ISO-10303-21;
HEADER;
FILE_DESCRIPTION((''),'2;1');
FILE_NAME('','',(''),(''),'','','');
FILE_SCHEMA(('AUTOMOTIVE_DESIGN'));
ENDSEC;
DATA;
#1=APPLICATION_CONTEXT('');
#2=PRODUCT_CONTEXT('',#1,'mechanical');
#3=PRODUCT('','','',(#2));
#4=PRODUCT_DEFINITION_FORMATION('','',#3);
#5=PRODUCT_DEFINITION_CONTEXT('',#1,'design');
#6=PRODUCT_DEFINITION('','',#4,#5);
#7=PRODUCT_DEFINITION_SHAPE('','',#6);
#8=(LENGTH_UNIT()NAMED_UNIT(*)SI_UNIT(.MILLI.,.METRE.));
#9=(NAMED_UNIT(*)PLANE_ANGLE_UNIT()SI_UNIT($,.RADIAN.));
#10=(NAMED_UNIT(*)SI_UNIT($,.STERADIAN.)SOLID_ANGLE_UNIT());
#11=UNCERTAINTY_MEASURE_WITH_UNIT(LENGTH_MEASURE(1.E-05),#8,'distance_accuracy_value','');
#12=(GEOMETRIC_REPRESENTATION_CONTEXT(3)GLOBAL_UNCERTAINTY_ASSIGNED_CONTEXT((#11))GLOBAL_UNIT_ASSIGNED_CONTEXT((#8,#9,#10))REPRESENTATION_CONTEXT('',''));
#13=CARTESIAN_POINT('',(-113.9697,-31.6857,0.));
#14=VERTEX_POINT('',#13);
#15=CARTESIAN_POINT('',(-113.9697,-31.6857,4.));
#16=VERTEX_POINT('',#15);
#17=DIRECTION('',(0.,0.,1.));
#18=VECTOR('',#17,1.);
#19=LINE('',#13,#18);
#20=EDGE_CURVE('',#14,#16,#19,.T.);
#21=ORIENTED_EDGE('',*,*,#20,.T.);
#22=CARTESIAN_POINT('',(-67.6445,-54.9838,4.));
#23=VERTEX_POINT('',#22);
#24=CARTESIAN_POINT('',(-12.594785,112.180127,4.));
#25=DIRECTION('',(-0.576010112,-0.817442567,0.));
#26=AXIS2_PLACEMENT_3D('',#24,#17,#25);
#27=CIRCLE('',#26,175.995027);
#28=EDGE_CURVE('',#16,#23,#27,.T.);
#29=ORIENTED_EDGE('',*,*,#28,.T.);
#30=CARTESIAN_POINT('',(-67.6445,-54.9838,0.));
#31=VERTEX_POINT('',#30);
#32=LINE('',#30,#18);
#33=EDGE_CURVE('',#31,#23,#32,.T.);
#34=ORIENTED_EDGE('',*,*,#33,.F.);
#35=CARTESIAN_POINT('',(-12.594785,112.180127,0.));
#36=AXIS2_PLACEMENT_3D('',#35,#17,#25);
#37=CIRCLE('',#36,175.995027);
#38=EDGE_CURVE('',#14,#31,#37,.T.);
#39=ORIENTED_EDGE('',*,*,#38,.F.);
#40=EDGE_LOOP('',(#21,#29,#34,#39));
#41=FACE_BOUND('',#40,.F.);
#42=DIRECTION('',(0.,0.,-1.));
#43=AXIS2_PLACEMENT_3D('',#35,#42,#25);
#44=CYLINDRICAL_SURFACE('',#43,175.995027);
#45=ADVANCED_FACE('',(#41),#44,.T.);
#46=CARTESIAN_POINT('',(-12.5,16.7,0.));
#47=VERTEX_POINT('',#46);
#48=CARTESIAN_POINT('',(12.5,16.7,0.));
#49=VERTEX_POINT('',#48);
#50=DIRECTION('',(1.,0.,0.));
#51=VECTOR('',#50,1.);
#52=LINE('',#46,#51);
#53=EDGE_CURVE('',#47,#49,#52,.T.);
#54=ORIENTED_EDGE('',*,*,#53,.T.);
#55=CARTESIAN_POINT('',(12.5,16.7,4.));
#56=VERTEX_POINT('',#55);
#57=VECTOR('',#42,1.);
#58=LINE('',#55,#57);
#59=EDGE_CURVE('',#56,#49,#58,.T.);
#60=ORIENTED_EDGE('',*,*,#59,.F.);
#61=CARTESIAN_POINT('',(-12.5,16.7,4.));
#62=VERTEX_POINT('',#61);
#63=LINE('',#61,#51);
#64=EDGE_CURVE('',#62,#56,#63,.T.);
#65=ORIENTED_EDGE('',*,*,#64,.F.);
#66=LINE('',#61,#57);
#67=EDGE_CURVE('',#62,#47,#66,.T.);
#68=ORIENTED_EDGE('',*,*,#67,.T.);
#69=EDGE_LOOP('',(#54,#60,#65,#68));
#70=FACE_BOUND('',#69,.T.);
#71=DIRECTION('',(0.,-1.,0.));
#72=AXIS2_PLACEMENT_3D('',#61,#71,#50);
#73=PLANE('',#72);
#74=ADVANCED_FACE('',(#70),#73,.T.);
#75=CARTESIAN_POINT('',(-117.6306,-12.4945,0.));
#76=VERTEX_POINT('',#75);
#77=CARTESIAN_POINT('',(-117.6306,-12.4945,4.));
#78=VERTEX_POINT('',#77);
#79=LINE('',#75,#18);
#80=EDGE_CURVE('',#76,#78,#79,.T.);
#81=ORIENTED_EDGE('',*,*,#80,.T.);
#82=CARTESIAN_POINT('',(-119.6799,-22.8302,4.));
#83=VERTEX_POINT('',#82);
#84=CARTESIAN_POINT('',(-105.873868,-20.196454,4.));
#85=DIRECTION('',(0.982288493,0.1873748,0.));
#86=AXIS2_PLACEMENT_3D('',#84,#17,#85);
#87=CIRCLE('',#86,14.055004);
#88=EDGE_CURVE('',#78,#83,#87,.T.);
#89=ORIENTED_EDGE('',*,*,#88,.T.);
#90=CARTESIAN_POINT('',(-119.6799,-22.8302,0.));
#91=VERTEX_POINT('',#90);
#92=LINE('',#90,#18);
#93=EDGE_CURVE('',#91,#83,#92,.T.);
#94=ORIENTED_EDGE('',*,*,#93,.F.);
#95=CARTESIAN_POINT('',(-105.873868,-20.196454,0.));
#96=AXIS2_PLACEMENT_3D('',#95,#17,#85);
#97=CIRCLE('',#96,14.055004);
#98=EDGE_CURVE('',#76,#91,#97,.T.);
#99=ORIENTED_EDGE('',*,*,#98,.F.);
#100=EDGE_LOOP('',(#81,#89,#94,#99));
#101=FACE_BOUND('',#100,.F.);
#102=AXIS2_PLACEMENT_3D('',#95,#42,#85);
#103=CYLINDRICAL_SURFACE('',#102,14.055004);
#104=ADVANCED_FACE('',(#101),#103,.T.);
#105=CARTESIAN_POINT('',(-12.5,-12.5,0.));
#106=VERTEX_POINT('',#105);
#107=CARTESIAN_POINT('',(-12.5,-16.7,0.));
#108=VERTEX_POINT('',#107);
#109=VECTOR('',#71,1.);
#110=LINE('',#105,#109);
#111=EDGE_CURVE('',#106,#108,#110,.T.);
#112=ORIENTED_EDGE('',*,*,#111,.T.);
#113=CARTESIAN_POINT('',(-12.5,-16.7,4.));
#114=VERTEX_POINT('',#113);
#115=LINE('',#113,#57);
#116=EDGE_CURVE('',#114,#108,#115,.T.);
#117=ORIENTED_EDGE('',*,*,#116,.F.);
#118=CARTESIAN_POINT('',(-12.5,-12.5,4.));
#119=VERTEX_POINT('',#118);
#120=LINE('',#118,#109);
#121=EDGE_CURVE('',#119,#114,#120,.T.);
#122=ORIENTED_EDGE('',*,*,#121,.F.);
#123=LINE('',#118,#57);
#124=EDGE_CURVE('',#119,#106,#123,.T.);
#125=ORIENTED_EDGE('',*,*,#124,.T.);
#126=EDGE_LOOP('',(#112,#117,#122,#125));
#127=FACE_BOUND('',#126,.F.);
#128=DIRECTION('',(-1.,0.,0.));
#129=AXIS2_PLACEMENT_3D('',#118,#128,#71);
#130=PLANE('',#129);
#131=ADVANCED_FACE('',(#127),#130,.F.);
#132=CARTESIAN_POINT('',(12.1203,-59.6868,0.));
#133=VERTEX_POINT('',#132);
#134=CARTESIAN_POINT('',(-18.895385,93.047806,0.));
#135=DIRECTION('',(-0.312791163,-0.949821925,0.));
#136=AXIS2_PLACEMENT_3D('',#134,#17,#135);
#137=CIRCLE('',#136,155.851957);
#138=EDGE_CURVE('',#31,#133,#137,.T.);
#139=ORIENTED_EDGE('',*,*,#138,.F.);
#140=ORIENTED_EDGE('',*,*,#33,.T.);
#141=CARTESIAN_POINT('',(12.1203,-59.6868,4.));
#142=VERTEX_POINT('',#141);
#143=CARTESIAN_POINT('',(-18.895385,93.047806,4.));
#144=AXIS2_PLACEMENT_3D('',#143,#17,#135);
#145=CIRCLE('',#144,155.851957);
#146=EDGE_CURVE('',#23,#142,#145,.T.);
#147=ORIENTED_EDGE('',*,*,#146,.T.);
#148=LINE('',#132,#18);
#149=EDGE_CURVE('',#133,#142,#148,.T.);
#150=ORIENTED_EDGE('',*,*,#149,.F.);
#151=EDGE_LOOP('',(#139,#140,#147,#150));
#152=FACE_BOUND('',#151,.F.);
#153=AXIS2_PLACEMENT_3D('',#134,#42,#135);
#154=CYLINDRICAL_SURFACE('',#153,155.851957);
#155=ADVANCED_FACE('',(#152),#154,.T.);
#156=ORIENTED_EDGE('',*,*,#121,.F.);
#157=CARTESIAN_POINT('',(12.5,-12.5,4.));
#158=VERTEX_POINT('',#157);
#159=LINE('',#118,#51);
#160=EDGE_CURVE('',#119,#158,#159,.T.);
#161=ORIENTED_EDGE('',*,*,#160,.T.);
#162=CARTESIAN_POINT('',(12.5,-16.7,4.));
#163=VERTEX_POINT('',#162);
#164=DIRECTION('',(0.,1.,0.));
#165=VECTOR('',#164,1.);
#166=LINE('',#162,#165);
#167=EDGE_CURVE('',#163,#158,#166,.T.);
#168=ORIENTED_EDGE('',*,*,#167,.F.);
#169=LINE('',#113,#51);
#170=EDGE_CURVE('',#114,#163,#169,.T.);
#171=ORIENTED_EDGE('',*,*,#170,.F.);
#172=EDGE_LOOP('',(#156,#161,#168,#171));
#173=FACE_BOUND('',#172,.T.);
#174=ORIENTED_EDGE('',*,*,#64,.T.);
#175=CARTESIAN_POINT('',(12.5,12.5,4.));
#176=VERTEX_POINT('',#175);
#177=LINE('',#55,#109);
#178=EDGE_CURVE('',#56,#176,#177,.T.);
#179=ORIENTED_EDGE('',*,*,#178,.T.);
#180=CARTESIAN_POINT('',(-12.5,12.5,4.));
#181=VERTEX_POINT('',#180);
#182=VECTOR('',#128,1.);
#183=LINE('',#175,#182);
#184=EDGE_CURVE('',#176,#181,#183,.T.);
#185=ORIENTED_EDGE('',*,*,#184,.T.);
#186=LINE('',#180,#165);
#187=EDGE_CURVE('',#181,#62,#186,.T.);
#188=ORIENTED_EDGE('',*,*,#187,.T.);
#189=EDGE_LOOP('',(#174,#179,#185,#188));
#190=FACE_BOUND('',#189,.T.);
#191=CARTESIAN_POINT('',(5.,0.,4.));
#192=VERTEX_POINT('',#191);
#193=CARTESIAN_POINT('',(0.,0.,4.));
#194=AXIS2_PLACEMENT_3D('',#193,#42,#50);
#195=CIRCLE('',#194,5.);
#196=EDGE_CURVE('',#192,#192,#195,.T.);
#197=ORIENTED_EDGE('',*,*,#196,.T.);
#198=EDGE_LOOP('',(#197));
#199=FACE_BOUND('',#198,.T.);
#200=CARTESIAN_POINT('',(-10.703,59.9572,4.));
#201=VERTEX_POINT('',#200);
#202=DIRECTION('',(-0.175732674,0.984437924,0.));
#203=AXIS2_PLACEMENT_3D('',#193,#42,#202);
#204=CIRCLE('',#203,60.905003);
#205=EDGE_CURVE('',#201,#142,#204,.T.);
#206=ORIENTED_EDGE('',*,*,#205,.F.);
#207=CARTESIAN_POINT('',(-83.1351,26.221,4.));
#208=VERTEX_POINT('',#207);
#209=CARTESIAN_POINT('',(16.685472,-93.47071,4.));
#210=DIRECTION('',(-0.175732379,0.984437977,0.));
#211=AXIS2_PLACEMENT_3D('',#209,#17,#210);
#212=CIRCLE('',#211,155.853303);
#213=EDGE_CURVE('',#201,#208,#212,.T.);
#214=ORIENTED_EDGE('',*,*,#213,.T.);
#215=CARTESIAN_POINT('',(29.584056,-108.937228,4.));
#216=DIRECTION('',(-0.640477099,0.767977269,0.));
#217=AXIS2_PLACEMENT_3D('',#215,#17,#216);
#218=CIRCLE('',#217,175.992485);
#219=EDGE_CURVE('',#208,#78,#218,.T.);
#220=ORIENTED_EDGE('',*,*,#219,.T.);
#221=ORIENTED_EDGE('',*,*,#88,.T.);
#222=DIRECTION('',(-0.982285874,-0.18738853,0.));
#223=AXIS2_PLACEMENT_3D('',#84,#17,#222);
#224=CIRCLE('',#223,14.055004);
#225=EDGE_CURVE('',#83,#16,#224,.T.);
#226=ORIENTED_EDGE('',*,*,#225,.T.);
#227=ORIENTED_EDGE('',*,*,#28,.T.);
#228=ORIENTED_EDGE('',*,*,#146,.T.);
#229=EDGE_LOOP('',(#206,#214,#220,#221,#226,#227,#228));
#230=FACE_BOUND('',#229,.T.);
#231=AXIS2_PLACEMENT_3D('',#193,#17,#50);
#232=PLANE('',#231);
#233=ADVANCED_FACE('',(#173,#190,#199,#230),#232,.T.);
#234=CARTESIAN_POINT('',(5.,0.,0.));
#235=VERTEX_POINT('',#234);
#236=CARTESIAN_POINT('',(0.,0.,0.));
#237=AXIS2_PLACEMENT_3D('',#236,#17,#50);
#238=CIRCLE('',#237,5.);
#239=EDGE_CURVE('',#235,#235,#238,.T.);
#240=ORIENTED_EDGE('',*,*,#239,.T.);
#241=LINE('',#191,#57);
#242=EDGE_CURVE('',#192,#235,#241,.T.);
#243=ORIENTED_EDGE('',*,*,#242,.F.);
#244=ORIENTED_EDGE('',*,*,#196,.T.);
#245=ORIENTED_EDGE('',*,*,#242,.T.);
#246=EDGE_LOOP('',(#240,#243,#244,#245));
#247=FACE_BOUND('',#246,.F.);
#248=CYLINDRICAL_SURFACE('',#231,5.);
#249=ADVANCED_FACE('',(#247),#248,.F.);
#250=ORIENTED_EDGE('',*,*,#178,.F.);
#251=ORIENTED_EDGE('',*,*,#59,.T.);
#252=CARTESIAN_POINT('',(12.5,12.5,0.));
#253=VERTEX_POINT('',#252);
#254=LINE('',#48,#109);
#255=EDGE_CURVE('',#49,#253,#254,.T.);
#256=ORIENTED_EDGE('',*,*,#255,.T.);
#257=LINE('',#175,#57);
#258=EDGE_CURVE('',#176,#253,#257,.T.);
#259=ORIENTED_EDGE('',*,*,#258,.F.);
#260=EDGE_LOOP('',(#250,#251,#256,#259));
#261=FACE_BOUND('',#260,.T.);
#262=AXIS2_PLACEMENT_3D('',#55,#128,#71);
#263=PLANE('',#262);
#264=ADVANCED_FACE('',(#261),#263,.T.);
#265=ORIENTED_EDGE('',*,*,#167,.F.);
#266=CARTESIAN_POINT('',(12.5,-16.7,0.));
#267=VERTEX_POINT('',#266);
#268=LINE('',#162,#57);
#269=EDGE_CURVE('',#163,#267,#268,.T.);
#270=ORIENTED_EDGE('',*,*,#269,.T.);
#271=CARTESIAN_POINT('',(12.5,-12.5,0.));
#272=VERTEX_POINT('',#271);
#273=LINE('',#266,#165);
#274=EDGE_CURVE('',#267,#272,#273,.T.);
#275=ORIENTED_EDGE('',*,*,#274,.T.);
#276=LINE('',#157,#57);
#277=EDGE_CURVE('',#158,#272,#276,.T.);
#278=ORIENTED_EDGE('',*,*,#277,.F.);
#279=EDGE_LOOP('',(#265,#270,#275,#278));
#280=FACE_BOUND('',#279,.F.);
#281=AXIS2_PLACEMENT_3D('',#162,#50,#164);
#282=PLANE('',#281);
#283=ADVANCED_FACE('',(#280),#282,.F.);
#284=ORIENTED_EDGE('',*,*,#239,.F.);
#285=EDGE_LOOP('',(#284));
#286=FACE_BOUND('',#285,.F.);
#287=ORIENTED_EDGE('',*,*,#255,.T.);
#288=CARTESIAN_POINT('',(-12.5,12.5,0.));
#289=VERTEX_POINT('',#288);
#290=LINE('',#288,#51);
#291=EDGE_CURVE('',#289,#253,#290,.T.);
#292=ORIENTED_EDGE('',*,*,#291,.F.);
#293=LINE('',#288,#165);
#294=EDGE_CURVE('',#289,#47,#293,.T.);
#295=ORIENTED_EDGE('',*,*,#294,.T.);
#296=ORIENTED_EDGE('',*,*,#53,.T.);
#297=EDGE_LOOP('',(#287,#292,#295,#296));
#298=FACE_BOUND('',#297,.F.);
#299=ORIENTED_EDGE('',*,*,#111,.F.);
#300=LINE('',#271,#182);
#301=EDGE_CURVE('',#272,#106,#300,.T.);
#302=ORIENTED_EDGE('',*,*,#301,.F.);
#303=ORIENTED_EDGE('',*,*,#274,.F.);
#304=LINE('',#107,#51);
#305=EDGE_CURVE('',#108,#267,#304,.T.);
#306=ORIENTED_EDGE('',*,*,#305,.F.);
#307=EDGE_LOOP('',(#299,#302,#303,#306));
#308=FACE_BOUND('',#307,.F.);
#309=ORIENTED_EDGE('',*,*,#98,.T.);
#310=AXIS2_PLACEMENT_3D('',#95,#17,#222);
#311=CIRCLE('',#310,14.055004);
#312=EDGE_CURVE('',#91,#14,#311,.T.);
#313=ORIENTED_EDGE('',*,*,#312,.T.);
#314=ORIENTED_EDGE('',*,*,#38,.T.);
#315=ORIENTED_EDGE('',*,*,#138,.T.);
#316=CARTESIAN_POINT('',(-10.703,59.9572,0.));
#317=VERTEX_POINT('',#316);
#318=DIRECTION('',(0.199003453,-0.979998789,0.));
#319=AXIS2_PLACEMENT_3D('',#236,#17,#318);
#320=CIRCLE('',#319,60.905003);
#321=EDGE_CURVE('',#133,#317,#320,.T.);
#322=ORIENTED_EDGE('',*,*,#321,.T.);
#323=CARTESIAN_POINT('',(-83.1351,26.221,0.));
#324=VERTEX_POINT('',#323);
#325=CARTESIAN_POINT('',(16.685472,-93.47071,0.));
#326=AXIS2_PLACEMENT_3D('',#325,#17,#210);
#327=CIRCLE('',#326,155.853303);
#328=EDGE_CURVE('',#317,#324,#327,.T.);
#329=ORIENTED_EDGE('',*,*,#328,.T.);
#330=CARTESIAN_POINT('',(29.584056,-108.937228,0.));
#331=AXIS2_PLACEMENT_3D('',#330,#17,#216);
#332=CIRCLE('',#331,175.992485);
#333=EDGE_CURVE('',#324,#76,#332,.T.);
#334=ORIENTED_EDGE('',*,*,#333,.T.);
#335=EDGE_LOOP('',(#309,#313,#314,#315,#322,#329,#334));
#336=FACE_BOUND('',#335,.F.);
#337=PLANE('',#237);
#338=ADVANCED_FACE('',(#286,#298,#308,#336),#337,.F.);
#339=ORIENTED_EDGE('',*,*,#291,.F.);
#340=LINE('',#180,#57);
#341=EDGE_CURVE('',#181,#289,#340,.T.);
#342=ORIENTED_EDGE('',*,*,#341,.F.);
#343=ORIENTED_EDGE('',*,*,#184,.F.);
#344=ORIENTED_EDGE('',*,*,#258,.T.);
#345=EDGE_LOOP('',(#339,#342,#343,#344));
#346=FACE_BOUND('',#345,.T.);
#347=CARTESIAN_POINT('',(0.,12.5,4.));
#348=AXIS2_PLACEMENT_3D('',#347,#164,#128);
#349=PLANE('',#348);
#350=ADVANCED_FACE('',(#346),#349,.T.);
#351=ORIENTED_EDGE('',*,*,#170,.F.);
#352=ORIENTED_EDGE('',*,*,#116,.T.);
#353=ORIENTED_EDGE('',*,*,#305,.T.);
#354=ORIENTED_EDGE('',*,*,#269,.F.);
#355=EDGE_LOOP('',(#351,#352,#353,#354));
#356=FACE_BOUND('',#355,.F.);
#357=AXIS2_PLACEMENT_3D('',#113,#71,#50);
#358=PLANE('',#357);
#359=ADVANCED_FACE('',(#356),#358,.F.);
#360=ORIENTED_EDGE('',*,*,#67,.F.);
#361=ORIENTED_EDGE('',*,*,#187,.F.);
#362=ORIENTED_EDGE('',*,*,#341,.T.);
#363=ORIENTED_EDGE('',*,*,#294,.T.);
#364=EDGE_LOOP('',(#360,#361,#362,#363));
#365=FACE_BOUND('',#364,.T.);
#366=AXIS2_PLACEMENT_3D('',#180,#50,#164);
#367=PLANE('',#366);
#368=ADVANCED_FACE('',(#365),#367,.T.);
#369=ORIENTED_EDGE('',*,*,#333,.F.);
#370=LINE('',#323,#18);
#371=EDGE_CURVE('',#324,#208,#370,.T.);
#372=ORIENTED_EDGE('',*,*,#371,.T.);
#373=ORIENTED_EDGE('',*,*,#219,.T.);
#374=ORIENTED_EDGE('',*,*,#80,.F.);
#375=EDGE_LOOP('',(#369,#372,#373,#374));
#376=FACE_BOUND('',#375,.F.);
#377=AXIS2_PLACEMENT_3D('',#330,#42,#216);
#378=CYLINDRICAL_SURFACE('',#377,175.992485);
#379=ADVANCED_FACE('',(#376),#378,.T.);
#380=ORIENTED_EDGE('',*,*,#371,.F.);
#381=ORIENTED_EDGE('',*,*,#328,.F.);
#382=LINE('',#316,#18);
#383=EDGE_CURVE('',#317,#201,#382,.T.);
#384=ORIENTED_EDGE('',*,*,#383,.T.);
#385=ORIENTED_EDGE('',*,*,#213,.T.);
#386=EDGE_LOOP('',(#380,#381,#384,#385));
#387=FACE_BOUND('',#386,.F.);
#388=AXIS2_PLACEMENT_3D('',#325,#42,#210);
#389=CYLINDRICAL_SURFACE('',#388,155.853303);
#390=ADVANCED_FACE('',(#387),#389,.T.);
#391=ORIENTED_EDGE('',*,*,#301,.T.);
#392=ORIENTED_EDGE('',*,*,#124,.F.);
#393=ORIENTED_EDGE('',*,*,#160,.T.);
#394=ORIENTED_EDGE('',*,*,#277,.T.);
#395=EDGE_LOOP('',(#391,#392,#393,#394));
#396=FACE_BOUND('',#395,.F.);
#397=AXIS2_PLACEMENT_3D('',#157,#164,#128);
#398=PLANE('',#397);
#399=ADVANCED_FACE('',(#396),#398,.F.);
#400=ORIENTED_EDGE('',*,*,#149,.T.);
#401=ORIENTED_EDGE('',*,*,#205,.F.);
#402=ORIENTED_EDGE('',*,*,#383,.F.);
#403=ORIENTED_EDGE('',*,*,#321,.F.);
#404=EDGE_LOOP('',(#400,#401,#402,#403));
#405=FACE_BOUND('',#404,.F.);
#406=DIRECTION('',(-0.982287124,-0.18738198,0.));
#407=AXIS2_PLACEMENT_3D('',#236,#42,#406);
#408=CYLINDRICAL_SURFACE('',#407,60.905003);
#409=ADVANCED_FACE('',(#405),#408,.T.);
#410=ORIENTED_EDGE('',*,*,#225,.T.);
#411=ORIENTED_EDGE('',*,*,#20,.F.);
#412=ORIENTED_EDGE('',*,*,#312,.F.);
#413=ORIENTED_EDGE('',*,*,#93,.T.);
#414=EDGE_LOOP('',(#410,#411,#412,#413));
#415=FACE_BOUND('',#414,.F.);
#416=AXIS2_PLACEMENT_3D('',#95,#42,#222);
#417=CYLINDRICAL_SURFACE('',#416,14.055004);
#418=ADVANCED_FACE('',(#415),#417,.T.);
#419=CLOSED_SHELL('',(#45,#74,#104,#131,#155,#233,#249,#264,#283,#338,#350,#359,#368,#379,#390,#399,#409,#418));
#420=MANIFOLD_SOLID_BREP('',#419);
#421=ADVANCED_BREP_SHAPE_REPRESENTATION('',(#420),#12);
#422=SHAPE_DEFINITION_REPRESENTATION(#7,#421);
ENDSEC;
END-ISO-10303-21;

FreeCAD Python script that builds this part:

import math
import FreeCAD as App
import Part
import Sketcher
from FreeCAD import Vector

doc = App.newDocument("Part")
body = doc.addObject("PartDesign::Body", "Body")

# Sketch on XY plane
sketch1 = body.newObject("Sketcher::SketchObject", "Sketch")
sketch1.AttachmentSupport = (doc.getObject("XY_Plane"), [""])
sketch1.MapMode = "FlatFace"
sketch1.addGeometry([
    Part.ArcOfCircle(Part.Circle(Vector(0, 0, 0), Vector(0, 0, 1), 60.905003), math.radians(-78.52131), math.radians(100.121298)),  # 0
    Part.ArcOfCircle(Part.Circle(Vector(16.6855, -93.4708, 0), Vector(0, 0, 1), 155.853396), math.radians(100.121285), math.radians(129.82744)),  # 1
    Part.ArcOfCircle(Part.Circle(Vector(29.584056, -108.937228, 0), Vector(0, 0, 1), 175.992485), math.radians(129.827405), math.radians(146.770536)),  # 2
    Part.ArcOfCircle(Part.Circle(Vector(-105.8739, -20.1965, 0), Vector(0, 0, 1), 14.054964), math.radians(146.770558), math.radians(190.800259)),  # 3
    Part.ArcOfCircle(Part.Circle(Vector(-105.8739, -20.1965, 0), Vector(0, 0, 1), 14.054964), math.radians(-169.199741), math.radians(-125.170223)),  # 4
    Part.ArcOfCircle(Part.Circle(Vector(-12.594785, 112.180127, 0), Vector(0, 0, 1), 175.995027), math.radians(-125.170402), math.radians(-108.227529)),  # 5
    Part.ArcOfCircle(Part.Circle(Vector(-18.895385, 93.047806, 0), Vector(0, 0, 1), 155.851957), math.radians(-108.22752), math.radians(-78.521082)),  # 6
], False)
sketch1.addConstraint([
    Sketcher.Constraint("Coincident", 0, 2, 1, 1),
    Sketcher.Constraint("Coincident", 1, 2, 2, 1),
    Sketcher.Constraint("Coincident", 2, 2, 3, 1),
    Sketcher.Constraint("Coincident", 3, 2, 4, 1),
    Sketcher.Constraint("Coincident", 4, 2, 5, 1),
    Sketcher.Constraint("Coincident", 5, 2, 6, 1),
    Sketcher.Constraint("Coincident", 6, 2, 0, 1),
    Sketcher.Constraint("Coincident", 0, 3, -1, 1),
    Sketcher.Constraint("Coincident", 4, 3, 3, 3),
    Sketcher.Constraint("Radius", 0, 60.905),
    Sketcher.Constraint("Radius", 3, 14.055),
    Sketcher.Constraint("Radius", 5, 175.995),
    Sketcher.Constraint("Radius", 6, 155.852),
    Sketcher.Constraint("Radius", 1, 155.8534),
    Sketcher.Constraint("Radius", 2, 175.9925),
    Sketcher.Constraint("DistanceX", 3, 2, -1, 1, 119.68),
    Sketcher.Constraint("DistanceX", -1, 1, 2, 3, 29.584),
    Sketcher.Constraint("DistanceX", 3, 3, -1, 1, 105.874),
    Sketcher.Constraint("DistanceX", 0, 2, -1, 1, 10.703),
    Sketcher.Constraint("DistanceX", 1, 2, -1, 1, 83.135),
    Sketcher.Constraint("DistanceY", -1, 1, 1, 2, 26.221),
    Sketcher.Constraint("DistanceX", 3, 3, 5, 3, 93.279),
    Sketcher.Constraint("DistanceY", 3, 3, 2, 2, 7.702),
    Sketcher.Constraint("DistanceX", 2, 2, 4, 2, 3.661),
    Sketcher.Constraint("DistanceX", 2, 2, 5, 2, 49.986),
    Sketcher.Constraint("DistanceY", 1, 3, 6, 2, 33.784),
])
pad1 = body.newObject("PartDesign::Pad", "Pad")
pad1.Profile = sketch1
pad1.Length = 4

# Sketch on XY plane
sketch2 = body.newObject("Sketcher::SketchObject", "Sketch001")
sketch2.AttachmentSupport = (doc.getObject("XY_Plane"), [""])
sketch2.MapMode = "FlatFace"
sketch2.AttachmentOffset = App.Placement(Vector(0, 0, 4), App.Rotation())
sketch2.addGeometry([
    Part.Circle(Vector(0, 0, 0), Vector(0, 0, 1), 5),  # 0
    Part.LineSegment(Vector(-12.5, 12.5, 0), Vector(12.5, 12.5, 0)),  # 1
    Part.LineSegment(Vector(12.5, 12.5, 0), Vector(12.5, 16.7, 0)),  # 2
    Part.LineSegment(Vector(12.5, 16.7, 0), Vector(-12.5, 16.7, 0)),  # 3
    Part.LineSegment(Vector(-12.5, 16.7, 0), Vector(-12.5, 12.5, 0)),  # 4
    Part.LineSegment(Vector(12.5, -12.5, 0), Vector(-12.5, -12.5, 0)),  # 5
    Part.LineSegment(Vector(-12.5, -12.5, 0), Vector(-12.5, -16.7, 0)),  # 6
    Part.LineSegment(Vector(-12.5, -16.7, 0), Vector(12.5, -16.7, 0)),  # 7
    Part.LineSegment(Vector(12.5, -16.7, 0), Vector(12.5, -12.5, 0)),  # 8
], False)
sketch2.addConstraint([
    Sketcher.Constraint("Coincident", 1, 2, 2, 1),
    Sketcher.Constraint("Coincident", 2, 2, 3, 1),
    Sketcher.Constraint("Coincident", 3, 2, 4, 1),
    Sketcher.Constraint("Coincident", 4, 2, 1, 1),
    Sketcher.Constraint("Coincident", 5, 2, 6, 1),
    Sketcher.Constraint("Coincident", 6, 2, 7, 1),
    Sketcher.Constraint("Coincident", 7, 2, 8, 1),
    Sketcher.Constraint("Coincident", 8, 2, 5, 1),
    Sketcher.Constraint("Horizontal", 1),
    Sketcher.Constraint("Vertical", 2),
    Sketcher.Constraint("Horizontal", 3),
    Sketcher.Constraint("Vertical", 4),
    Sketcher.Constraint("Horizontal", 5),
    Sketcher.Constraint("Vertical", 6),
    Sketcher.Constraint("Horizontal", 7),
    Sketcher.Constraint("Vertical", 8),
    Sketcher.Constraint("Coincident", 0, 3, -1, 1),
    Sketcher.Constraint("Symmetric", 1, 2, 5, 2, -1, 1),
    Sketcher.Constraint("Symmetric", 3, 2, 7, 2, -1, 1),
    Sketcher.Constraint("Vertical", 4, 2, 5, 2),
    Sketcher.Constraint("Diameter", 0, 10.0),
    Sketcher.Constraint("DistanceX", 1, 1, 1, 2, 25.0),
    Sketcher.Constraint("DistanceY", 2, 1, 2, 2, 4.2),
    Sketcher.Constraint("DistanceY", 5, 2, 4, 2, 25.0),
])
pocket1 = body.newObject("PartDesign::Pocket", "Pocket")
pocket1.Profile = sketch2
pocket1.Length = 4

doc.recompute()
